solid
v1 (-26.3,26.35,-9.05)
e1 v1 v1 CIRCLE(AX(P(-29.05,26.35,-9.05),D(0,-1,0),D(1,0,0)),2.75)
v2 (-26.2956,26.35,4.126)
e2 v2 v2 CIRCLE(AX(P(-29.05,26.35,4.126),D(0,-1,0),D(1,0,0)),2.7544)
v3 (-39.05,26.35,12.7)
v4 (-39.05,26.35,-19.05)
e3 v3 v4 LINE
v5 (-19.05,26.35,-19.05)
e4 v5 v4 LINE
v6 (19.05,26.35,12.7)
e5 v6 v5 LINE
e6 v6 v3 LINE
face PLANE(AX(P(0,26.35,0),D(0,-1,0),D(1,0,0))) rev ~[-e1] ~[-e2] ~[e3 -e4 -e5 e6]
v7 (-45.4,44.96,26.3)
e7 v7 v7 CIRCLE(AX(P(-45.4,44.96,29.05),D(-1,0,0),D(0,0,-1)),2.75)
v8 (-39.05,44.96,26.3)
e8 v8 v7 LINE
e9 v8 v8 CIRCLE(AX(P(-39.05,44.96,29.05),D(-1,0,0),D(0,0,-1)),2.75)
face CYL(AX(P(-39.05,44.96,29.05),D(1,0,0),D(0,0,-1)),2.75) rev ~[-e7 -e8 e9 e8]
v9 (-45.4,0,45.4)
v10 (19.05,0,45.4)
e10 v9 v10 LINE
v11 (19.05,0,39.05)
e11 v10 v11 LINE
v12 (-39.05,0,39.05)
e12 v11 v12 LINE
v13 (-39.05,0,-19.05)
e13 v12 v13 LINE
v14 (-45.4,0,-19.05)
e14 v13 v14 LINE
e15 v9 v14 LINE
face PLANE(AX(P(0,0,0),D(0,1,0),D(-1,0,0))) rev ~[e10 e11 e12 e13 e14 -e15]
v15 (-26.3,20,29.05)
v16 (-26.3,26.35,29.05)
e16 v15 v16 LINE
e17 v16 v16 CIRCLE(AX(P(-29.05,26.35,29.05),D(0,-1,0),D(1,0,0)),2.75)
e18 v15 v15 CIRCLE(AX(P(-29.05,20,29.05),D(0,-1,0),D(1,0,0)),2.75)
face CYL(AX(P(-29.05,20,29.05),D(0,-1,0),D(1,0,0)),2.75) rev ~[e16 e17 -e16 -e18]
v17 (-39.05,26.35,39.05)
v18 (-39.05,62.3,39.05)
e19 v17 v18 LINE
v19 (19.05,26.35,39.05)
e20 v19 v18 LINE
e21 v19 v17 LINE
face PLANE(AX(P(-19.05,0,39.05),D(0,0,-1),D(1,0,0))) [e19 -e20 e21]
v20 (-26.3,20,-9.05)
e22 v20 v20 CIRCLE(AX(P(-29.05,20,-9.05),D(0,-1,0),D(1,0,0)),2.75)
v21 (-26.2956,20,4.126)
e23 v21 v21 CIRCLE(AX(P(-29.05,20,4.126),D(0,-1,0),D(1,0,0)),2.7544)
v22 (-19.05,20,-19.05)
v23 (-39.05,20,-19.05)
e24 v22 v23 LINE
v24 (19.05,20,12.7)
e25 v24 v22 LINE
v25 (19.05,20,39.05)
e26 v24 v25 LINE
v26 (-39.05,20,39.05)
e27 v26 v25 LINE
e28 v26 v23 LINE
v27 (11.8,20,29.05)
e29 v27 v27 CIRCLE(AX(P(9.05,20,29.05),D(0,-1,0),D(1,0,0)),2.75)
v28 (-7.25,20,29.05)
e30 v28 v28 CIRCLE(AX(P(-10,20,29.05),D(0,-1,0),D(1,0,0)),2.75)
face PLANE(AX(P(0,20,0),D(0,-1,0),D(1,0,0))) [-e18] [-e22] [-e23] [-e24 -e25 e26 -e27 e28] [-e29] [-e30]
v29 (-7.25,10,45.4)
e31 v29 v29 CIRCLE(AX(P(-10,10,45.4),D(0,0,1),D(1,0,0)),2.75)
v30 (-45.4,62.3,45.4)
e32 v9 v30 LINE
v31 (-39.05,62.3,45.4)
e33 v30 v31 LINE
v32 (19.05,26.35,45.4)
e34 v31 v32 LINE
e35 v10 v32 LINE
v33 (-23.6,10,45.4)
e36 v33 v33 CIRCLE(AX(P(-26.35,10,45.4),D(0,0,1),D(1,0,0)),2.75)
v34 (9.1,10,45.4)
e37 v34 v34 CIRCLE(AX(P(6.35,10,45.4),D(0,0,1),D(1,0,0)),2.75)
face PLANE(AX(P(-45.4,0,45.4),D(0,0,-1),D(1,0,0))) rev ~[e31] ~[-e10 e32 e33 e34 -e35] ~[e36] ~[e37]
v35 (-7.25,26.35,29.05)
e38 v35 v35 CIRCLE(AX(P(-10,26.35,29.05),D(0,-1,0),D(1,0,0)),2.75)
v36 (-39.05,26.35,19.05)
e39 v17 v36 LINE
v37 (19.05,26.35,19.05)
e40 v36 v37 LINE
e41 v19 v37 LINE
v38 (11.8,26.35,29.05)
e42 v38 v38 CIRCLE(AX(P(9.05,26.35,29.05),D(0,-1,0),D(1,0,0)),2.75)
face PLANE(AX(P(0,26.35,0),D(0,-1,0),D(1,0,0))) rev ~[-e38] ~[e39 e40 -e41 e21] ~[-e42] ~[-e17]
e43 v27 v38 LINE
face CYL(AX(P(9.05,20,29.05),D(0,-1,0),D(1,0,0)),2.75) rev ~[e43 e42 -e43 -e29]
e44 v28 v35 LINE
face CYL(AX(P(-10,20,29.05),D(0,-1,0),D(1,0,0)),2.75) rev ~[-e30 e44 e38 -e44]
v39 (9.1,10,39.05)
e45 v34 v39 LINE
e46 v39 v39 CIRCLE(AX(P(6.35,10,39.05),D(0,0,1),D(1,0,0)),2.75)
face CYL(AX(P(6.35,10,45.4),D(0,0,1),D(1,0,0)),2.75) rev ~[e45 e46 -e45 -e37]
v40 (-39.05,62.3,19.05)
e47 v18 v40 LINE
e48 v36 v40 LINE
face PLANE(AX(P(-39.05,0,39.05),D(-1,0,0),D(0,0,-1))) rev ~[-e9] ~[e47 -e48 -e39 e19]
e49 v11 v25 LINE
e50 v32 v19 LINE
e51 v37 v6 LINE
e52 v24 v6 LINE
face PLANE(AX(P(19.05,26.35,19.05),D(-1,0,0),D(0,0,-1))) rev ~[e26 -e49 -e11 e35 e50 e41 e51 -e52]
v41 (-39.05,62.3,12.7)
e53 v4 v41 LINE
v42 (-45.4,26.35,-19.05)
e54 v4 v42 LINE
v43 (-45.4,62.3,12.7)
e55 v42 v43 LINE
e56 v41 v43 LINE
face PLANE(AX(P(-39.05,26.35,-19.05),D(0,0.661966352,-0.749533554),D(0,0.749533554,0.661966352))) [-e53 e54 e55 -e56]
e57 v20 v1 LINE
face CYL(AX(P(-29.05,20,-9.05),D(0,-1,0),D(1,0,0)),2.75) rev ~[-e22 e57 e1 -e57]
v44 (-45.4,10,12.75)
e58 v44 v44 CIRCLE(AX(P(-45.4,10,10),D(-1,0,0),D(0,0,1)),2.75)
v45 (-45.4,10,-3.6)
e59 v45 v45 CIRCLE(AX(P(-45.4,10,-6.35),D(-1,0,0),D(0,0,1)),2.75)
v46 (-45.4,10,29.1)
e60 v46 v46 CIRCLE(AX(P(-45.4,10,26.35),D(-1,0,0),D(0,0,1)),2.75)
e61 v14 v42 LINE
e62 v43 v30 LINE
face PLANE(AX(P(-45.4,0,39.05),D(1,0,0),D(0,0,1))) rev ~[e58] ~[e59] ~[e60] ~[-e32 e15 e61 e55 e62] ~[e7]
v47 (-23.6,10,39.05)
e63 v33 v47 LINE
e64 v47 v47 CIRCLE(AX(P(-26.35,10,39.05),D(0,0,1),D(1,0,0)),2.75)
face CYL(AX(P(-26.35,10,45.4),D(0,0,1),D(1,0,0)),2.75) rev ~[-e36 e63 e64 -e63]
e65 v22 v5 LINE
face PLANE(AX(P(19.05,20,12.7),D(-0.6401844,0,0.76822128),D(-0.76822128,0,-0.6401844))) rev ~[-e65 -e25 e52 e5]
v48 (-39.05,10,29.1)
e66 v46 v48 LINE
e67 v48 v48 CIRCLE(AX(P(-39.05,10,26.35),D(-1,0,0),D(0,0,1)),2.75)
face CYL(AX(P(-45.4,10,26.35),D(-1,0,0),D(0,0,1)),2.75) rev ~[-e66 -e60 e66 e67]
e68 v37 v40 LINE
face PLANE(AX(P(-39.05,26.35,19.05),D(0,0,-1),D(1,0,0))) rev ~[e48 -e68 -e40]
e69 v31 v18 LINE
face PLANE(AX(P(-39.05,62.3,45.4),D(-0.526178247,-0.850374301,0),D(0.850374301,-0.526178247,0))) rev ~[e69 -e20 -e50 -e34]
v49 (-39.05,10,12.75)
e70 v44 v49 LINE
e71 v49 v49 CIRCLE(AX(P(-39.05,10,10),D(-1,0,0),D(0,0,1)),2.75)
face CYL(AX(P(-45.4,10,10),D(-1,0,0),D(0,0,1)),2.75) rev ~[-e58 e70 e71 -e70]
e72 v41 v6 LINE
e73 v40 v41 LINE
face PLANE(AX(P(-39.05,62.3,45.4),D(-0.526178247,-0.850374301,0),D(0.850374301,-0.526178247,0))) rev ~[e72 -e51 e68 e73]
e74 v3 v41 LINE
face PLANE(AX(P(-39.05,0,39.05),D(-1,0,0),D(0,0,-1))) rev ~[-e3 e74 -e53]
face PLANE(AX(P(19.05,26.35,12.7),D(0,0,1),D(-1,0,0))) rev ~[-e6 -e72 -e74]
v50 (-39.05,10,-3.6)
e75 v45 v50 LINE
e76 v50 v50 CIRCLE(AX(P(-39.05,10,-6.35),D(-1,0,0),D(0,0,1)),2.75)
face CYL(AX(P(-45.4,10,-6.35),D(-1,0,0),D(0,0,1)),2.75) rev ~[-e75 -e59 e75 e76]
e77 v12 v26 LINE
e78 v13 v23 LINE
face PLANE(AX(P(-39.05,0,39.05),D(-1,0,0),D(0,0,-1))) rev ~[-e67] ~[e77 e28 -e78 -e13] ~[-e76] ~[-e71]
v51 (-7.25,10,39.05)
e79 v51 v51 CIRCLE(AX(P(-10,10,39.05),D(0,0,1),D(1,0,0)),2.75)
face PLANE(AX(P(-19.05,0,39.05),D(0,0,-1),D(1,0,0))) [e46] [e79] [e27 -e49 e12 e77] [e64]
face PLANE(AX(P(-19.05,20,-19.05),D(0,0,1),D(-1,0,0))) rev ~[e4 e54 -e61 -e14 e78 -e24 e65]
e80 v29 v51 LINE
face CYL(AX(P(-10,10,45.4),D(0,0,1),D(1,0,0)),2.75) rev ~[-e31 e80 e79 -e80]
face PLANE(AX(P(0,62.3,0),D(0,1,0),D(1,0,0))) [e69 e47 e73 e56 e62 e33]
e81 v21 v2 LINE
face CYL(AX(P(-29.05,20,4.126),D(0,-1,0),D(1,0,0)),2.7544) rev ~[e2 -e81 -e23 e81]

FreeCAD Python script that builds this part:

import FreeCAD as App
import Part
import Sketcher

V = App.Vector
Q = App.Units.Quantity

doc = App.newDocument("Part")
params = doc.addObject("Spreadsheet::Sheet", "Params")
for row, (alias, value) in enumerate([
    ("sketch1_width", "6.35 mm"),
    ("sketch1_width2", "58.1 mm"),
    ("pad1_length", "62.3 mm"),
    ("sketch2_diameter", "5.5 mm"),
    ("pocket1_length", "62.3 mm"),
    ("sketch3_diameter", "5.5 mm"),
    ("pocket2_length", "62.3 mm"),
    ("sketch4_diameter", "5.5 mm"),
    ("sketch4_width", "20 mm"),
    ("sketch4_height", "26.35 mm"),
    ("pad2_length", "6.35 mm"),
    ("sketch5_height", "6.35 mm"),
    ("sketch5_width", "58.1 mm"),
    ("pad3_length", "35.95 mm"),
    ("sketch6_width", "35.95 mm"),
    ("sketch6_height", "31.75 mm"),
    ("sketch7_width", "58.1 mm"),
    ("sketch7_height", "35.95 mm"),
    ("sketch8_diameter", "5.5 mm"),
], start=1):
    params.set(f"A{row}", alias)
    params.set(f"B{row}", "=" + value)
    params.setAlias(f"B{row}", alias)

body = doc.addObject("PartDesign::Body", "Body")

# Sketch on XZ plane
sketch1 = body.newObject("Sketcher::SketchObject", "Sketch")
sketch1.AttachmentSupport = (doc.getObject("XZ_Plane"), [""])
sketch1.MapMode = "FlatFace"
sketch1.addGeometry([
    Part.LineSegment(V(19, 39, 0), V(-39, 39, 0)),  # 0
    Part.LineSegment(V(-39, 39, 0), V(-39, -19, 0)),  # 1
    Part.LineSegment(V(-39, -19, 0), V(-45, -19, 0)),  # 2
    Part.LineSegment(V(-45, -19, 0), V(-45, 45, 0)),  # 3
    Part.LineSegment(V(-45, 45, 0), V(19, 45, 0)),  # 4
    Part.LineSegment(V(19, 45, 0), V(19, 39, 0)),  # 5
], False)
sketch1.addConstraint([
    Sketcher.Constraint("Coincident", 0, 2, 1, 1),
    Sketcher.Constraint("Coincident", 1, 2, 2, 1),
    Sketcher.Constraint("Coincident", 2, 2, 3, 1),
    Sketcher.Constraint("Coincident", 3, 2, 4, 1),
    Sketcher.Constraint("Coincident", 4, 2, 5, 1),
    Sketcher.Constraint("Coincident", 5, 2, 0, 1),
    Sketcher.Constraint("Horizontal", 0),
    Sketcher.Constraint("Vertical", 1),
    Sketcher.Constraint("Horizontal", 2),
    Sketcher.Constraint("Vertical", 3),
    Sketcher.Constraint("Horizontal", 4),
    Sketcher.Constraint("Vertical", 5),
    Sketcher.Constraint("Equal", 0, 1),
    Sketcher.Constraint("Equal", 4, 3),
    Sketcher.Constraint("DistanceX", 2, 2, 2, 1, Q("6.35 mm")),
    Sketcher.Constraint("DistanceX", 0, 2, 0, 1, Q("58.1 mm")),
    Sketcher.Constraint("DistanceX", 2, 2, -1, 1, Q("45.4 mm")),
    Sketcher.Constraint("DistanceY", -1, 1, 3, 2, Q("45.4 mm")),
])
sketch1.setExpression("Constraints[14]", "Params.sketch1_width")
sketch1.setExpression("Constraints[15]", "Params.sketch1_width2")
pad1 = body.newObject("PartDesign::Pad", "Pad")
pad1.Profile = sketch1
pad1.setExpression("Length", "Params.pad1_length")
pad1.Reversed = True

# Sketch on XY plane
sketch2 = body.newObject("Sketcher::SketchObject", "Sketch001")
sketch2.AttachmentSupport = (doc.getObject("XY_Plane"), [""])
sketch2.MapMode = "FlatFace"
sketch2.AttachmentOffset = App.Placement(V(0, 0, 45.4), App.Rotation())
sketch2.addGeometry([
    Part.Circle(V(-26.4, 10, 0), V(0, 0, 1), 2.8),
    Part.Circle(V(-10, 10, 0), V(0, 0, 1), 2.8),
    Part.Circle(V(6.3, 10, 0), V(0, 0, 1), 2.8),
], False)
sketch2.addConstraint([
    Sketcher.Constraint("Equal", 0, 1),
    Sketcher.Constraint("Equal", 1, 2),
    Sketcher.Constraint("Horizontal", 0, 3, 1, 3),
    Sketcher.Constraint("Horizontal", 1, 3, 2, 3),
    Sketcher.Constraint("Diameter", 0, Q("5.5 mm")),
    Sketcher.Constraint("DistanceX", 0, 3, 1, 3, Q("16.35 mm")),
    Sketcher.Constraint("DistanceX", 1, 3, 2, 3, Q("16.35 mm")),
    Sketcher.Constraint("DistanceY", -1, 1, 0, 3, Q("10 mm")),
    Sketcher.Constraint("DistanceX", 1, 3, -1, 1, Q("10 mm")),
])
sketch2.setExpression("Constraints[4]", "Params.sketch2_diameter")
pocket1 = body.newObject("PartDesign::Pocket", "Pocket")
pocket1.Profile = sketch2
pocket1.setExpression("Length", "Params.pocket1_length")

# Sketch on YZ plane
sketch3 = body.newObject("Sketcher::SketchObject", "Sketch002")
sketch3.AttachmentSupport = (doc.getObject("YZ_Plane"), [""])
sketch3.MapMode = "FlatFace"
sketch3.AttachmentOffset = App.Placement(V(0, 0, -45.4), App.Rotation())
sketch3.addGeometry([
    Part.Circle(V(10, -6.3, 0), V(0, 0, 1), 2.8),
    Part.Circle(V(10, 10, 0), V(0, 0, 1), 2.8),
    Part.Circle(V(10, 26.4, 0), V(0, 0, 1), 2.8),
], False)
sketch3.addConstraint([
    Sketcher.Constraint("Equal", 0, 1),
    Sketcher.Constraint("Equal", 1, 2),
    Sketcher.Constraint("Vertical", 0, 3, 1, 3),
    Sketcher.Constraint("Vertical", 1, 3, 2, 3),
    Sketcher.Constraint("Diameter", 0, Q("5.5 mm")),
    Sketcher.Constraint("DistanceX", -1, 1, 0, 3, Q("10 mm")),
    Sketcher.Constraint("DistanceY", -1, 1, 1, 3, Q("10 mm")),
    Sketcher.Constraint("DistanceY", 0, 3, 1, 3, Q("16.35 mm")),
    Sketcher.Constraint("DistanceY", 1, 3, 2, 3, Q("16.35 mm")),
])
sketch3.setExpression("Constraints[4]", "Params.sketch3_diameter")
pocket2 = body.newObject("PartDesign::Pocket", "Pocket001")
pocket2.Profile = sketch3
pocket2.setExpression("Length", "Params.pocket2_length")
pocket2.Reversed = True

# Sketch on XZ plane
sketch4 = body.newObject("Sketcher::SketchObject", "Sketch003")
sketch4.AttachmentSupport = (doc.getObject("XZ_Plane"), [""])
sketch4.MapMode = "FlatFace"
sketch4.AttachmentOffset = App.Placement(V(0, 0, -20), App.Rotation())
sketch4.addGeometry([
    Part.LineSegment(V(-39, 39, 0), V(-39, -19.1, 0)),  # 0
    Part.LineSegment(V(-39, -19.1, 0), V(-19.1, -19.1, 0)),  # 1
    Part.LineSegment(V(-19.1, -19.1, 0), V(19.1, 12.7, 0)),  # 2
    Part.LineSegment(V(19.1, 12.7, 0), V(19.1, 39, 0)),  # 3
    Part.LineSegment(V(19.1, 39, 0), V(-39, 39, 0)),  # 4
    Part.Circle(V(-29.1, -9.1, 0), V(0, 0, 1), 2.8),  # 5
    Part.Circle(V(-29.1, 4.1, 0), V(0, 0, 1), 2.8),  # 6
    Part.Circle(V(-29.1, 29.1, 0), V(0, 0, 1), 2.8),  # 7
    Part.Circle(V(-10, 29.1, 0), V(0, 0, 1), 2.8),  # 8
    Part.Circle(V(9.1, 29.1, 0), V(0, 0, 1), 2.8),  # 9
], False)
sketch4.addConstraint([
    Sketcher.Constraint("Coincident", 0, 2, 1, 1),
    Sketcher.Constraint("Coincident", 1, 2, 2, 1),
    Sketcher.Constraint("Coincident", 2, 2, 3, 1),
    Sketcher.Constraint("Coincident", 3, 2, 4, 1),
    Sketcher.Constraint("Coincident", 4, 2, 0, 1),
    Sketcher.Constraint("Vertical", 0),
    Sketcher.Constraint("Horizontal", 1),
    Sketcher.Constraint("Vertical", 3),
    Sketcher.Constraint("Horizontal", 4),
    Sketcher.Constraint("Equal", 5, 7),
    Sketcher.Constraint("Equal", 7, 8),
    Sketcher.Constraint("Equal", 8, 9),
    Sketcher.Constraint("Horizontal", 7, 3, 8, 3),
    Sketcher.Constraint("Horizontal", 8, 3, 9, 3),
    Sketcher.Constraint("Vertical", 5, 3, 6, 3),
    Sketcher.Constraint("Vertical", 6, 3, 7, 3),
    Sketcher.Constraint("Equal", 4, 0),
    Sketcher.Constraint("Diameter", 5, Q("5.5 mm")),
    Sketcher.Constraint("DistanceX", 1, 1, 1, 2, Q("20 mm")),
    Sketcher.Constraint("DistanceY", 0, 2, -1, 1, Q("19.05 mm")),
    Sketcher.Constraint("DistanceX", 1, 2, -1, 1, Q("19.05 mm")),
    Sketcher.Constraint("DistanceX", -1, 1, 2, 2, Q("19.05 mm")),
    Sketcher.Constraint("DistanceX", 7, 3, 8, 3, Q("19.05 mm")),
    Sketcher.Constraint("DistanceX", 8, 3, 9, 3, Q("19.05 mm")),
    Sketcher.Constraint("DistanceX", 8, 3, -1, 1, Q("10 mm")),
    Sketcher.Constraint("DistanceY", 0, 2, 5, 3, Q("10 mm")),
    Sketcher.Constraint("DistanceY", 9, 3, 3, 2, Q("10 mm")),
    Sketcher.Constraint("Diameter", 6, Q("5.5088 mm")),
    Sketcher.Constraint("DistanceY", 3, 1, 3, 2, Q("26.35 mm")),
    Sketcher.Constraint("DistanceY", -1, 1, 6, 3, Q("4.126 mm")),
])
sketch4.setExpression("Constraints[17]", "Params.sketch4_diameter")
sketch4.setExpression("Constraints[18]", "Params.sketch4_width")
sketch4.setExpression("Constraints[28]", "Params.sketch4_height")
pad2 = body.newObject("PartDesign::Pad", "Pad001")
pad2.Profile = sketch4
pad2.setExpression("Length", "Params.pad2_length")
pad2.Reversed = True

# Sketch on XZ plane
sketch5 = body.newObject("Sketcher::SketchObject", "Sketch004")
sketch5.AttachmentSupport = (doc.getObject("XZ_Plane"), [""])
sketch5.MapMode = "FlatFace"
sketch5.AttachmentOffset = App.Placement(V(0, 0, -26.35), App.Rotation())
sketch5.addGeometry([
    Part.LineSegment(V(-39, 19, 0), V(19, 19, 0)),
    Part.LineSegment(V(19, 19, 0), V(19, 13, 0)),
    Part.LineSegment(V(19, 13, 0), V(-39, 13, 0)),
    Part.LineSegment(V(-39, 13, 0), V(-39, 19, 0)),
], False)
sketch5.addConstraint([
    Sketcher.Constraint("Coincident", 0, 2, 1, 1),
    Sketcher.Constraint("Coincident", 1, 2, 2, 1),
    Sketcher.Constraint("Coincident", 2, 2, 3, 1),
    Sketcher.Constraint("Coincident", 3, 2, 0, 1),
    Sketcher.Constraint("Horizontal", 0),
    Sketcher.Constraint("Vertical", 1),
    Sketcher.Constraint("Horizontal", 2),
    Sketcher.Constraint("Vertical", 3),
    Sketcher.Constraint("DistanceY", 1, 2, 1, 1, Q("6.35 mm")),
    Sketcher.Constraint("DistanceX", 0, 1, 0, 2, Q("58.1 mm")),
    Sketcher.Constraint("DistanceY", -1, 1, 1, 2, Q("12.7 mm")),
    Sketcher.Constraint("DistanceX", -1, 1, 0, 2, Q("19.05 mm")),
])
sketch5.setExpression("Constraints[8]", "Params.sketch5_height")
sketch5.setExpression("Constraints[9]", "Params.sketch5_width")
pad3 = body.newObject("PartDesign::Pad", "Pad002")
pad3.Profile = sketch5
pad3.setExpression("Length", "Params.pad3_length")
pad3.Reversed = True

# Sketch on YZ plane
sketch6 = body.newObject("Sketcher::SketchObject", "Sketch005")
sketch6.AttachmentSupport = (doc.getObject("YZ_Plane"), [""])
sketch6.MapMode = "FlatFace"
sketch6.AttachmentOffset = App.Placement(V(0, 0, -39.05), App.Rotation())
sketch6.addGeometry([
    Part.LineSegment(V(62, -19, 0), V(62, 13, 0)),
    Part.LineSegment(V(62, 13, 0), V(26, -19, 0)),
    Part.LineSegment(V(26, -19, 0), V(62, -19, 0)),
], False)
sketch6.addConstraint([
    Sketcher.Constraint("Coincident", 0, 2, 1, 1),
    Sketcher.Constraint("Coincident", 1, 2, 2, 1),
    Sketcher.Constraint("Coincident", 2, 2, 0, 1),
    Sketcher.Constraint("Vertical", 0),
    Sketcher.Constraint("Horizontal", 2),
    Sketcher.Constraint("DistanceX", 2, 1, 2, 2, Q("35.95 mm")),
    Sketcher.Constraint("DistanceY", 0, 1, 0, 2, Q("31.75 mm")),
    Sketcher.Constraint("DistanceX", -1, 1, 0, 2, Q("62.3 mm")),
    Sketcher.Constraint("DistanceY", -1, 1, 0, 2, Q("12.7 mm")),
])
sketch6.setExpression("Constraints[5]", "Params.sketch6_width")
sketch6.setExpression("Constraints[6]", "Params.sketch6_height")
pocket3 = body.newObject("PartDesign::Pocket", "Pocket002")
pocket3.Profile = sketch6
pocket3.Type = "ThroughAll"

# Sketch on XY plane
sketch7 = body.newObject("Sketcher::SketchObject", "Sketch006")
sketch7.AttachmentSupport = (doc.getObject("XY_Plane"), [""])
sketch7.MapMode = "FlatFace"
sketch7.AttachmentOffset = App.Placement(V(0, 0, 45.4), App.Rotation())
sketch7.addGeometry([
    Part.LineSegment(V(19, 26, 0), V(19, 62, 0)),
    Part.LineSegment(V(19, 62, 0), V(-39, 62, 0)),
    Part.LineSegment(V(-39, 62, 0), V(19, 26, 0)),
], False)
sketch7.addConstraint([
    Sketcher.Constraint("Coincident", 0, 2, 1, 1),
    Sketcher.Constraint("Coincident", 1, 2, 2, 1),
    Sketcher.Constraint("Coincident", 2, 2, 0, 1),
    Sketcher.Constraint("Vertical", 0),
    Sketcher.Constraint("Horizontal", 1),
    Sketcher.Constraint("DistanceX", 1, 2, 1, 1, Q("58.1 mm")),
    Sketcher.Constraint("DistanceY", 0, 1, 0, 2, Q("35.95 mm")),
    Sketcher.Constraint("DistanceY", -1, 1, 0, 2, Q("62.3 mm")),
    Sketcher.Constraint("DistanceX", -1, 1, 0, 2, Q("19.05 mm")),
])
sketch7.setExpression("Constraints[5]", "Params.sketch7_width")
sketch7.setExpression("Constraints[6]", "Params.sketch7_height")
pocket4 = body.newObject("PartDesign::Pocket", "Pocket003")
pocket4.Profile = sketch7
pocket4.Type = "ThroughAll"

# Sketch on YZ plane
sketch8 = body.newObject("Sketcher::SketchObject", "Sketch007")
sketch8.AttachmentSupport = (doc.getObject("YZ_Plane"), [""])
sketch8.MapMode = "FlatFace"
sketch8.AttachmentOffset = App.Placement(V(0, 0, -39.05), App.Rotation())
sketch8.addGeometry(Part.Circle(V(45, 29.1, 0), V(0, 0, 1), 2.8), False)
sketch8.addConstraint([
    Sketcher.Constraint("Diameter", 0, Q("5.5 mm")),
    Sketcher.Constraint("DistanceX", -1, 1, 0, 3, Q("44.96 mm")),
    Sketcher.Constraint("DistanceY", -1, 1, 0, 3, Q("29.05 mm")),
])
sketch8.setExpression("Constraints[0]", "Params.sketch8_diameter")
pocket5 = body.newObject("PartDesign::Pocket", "Pocket004")
pocket5.Profile = sketch8
pocket5.Type = "ThroughAll"

doc.recompute()
